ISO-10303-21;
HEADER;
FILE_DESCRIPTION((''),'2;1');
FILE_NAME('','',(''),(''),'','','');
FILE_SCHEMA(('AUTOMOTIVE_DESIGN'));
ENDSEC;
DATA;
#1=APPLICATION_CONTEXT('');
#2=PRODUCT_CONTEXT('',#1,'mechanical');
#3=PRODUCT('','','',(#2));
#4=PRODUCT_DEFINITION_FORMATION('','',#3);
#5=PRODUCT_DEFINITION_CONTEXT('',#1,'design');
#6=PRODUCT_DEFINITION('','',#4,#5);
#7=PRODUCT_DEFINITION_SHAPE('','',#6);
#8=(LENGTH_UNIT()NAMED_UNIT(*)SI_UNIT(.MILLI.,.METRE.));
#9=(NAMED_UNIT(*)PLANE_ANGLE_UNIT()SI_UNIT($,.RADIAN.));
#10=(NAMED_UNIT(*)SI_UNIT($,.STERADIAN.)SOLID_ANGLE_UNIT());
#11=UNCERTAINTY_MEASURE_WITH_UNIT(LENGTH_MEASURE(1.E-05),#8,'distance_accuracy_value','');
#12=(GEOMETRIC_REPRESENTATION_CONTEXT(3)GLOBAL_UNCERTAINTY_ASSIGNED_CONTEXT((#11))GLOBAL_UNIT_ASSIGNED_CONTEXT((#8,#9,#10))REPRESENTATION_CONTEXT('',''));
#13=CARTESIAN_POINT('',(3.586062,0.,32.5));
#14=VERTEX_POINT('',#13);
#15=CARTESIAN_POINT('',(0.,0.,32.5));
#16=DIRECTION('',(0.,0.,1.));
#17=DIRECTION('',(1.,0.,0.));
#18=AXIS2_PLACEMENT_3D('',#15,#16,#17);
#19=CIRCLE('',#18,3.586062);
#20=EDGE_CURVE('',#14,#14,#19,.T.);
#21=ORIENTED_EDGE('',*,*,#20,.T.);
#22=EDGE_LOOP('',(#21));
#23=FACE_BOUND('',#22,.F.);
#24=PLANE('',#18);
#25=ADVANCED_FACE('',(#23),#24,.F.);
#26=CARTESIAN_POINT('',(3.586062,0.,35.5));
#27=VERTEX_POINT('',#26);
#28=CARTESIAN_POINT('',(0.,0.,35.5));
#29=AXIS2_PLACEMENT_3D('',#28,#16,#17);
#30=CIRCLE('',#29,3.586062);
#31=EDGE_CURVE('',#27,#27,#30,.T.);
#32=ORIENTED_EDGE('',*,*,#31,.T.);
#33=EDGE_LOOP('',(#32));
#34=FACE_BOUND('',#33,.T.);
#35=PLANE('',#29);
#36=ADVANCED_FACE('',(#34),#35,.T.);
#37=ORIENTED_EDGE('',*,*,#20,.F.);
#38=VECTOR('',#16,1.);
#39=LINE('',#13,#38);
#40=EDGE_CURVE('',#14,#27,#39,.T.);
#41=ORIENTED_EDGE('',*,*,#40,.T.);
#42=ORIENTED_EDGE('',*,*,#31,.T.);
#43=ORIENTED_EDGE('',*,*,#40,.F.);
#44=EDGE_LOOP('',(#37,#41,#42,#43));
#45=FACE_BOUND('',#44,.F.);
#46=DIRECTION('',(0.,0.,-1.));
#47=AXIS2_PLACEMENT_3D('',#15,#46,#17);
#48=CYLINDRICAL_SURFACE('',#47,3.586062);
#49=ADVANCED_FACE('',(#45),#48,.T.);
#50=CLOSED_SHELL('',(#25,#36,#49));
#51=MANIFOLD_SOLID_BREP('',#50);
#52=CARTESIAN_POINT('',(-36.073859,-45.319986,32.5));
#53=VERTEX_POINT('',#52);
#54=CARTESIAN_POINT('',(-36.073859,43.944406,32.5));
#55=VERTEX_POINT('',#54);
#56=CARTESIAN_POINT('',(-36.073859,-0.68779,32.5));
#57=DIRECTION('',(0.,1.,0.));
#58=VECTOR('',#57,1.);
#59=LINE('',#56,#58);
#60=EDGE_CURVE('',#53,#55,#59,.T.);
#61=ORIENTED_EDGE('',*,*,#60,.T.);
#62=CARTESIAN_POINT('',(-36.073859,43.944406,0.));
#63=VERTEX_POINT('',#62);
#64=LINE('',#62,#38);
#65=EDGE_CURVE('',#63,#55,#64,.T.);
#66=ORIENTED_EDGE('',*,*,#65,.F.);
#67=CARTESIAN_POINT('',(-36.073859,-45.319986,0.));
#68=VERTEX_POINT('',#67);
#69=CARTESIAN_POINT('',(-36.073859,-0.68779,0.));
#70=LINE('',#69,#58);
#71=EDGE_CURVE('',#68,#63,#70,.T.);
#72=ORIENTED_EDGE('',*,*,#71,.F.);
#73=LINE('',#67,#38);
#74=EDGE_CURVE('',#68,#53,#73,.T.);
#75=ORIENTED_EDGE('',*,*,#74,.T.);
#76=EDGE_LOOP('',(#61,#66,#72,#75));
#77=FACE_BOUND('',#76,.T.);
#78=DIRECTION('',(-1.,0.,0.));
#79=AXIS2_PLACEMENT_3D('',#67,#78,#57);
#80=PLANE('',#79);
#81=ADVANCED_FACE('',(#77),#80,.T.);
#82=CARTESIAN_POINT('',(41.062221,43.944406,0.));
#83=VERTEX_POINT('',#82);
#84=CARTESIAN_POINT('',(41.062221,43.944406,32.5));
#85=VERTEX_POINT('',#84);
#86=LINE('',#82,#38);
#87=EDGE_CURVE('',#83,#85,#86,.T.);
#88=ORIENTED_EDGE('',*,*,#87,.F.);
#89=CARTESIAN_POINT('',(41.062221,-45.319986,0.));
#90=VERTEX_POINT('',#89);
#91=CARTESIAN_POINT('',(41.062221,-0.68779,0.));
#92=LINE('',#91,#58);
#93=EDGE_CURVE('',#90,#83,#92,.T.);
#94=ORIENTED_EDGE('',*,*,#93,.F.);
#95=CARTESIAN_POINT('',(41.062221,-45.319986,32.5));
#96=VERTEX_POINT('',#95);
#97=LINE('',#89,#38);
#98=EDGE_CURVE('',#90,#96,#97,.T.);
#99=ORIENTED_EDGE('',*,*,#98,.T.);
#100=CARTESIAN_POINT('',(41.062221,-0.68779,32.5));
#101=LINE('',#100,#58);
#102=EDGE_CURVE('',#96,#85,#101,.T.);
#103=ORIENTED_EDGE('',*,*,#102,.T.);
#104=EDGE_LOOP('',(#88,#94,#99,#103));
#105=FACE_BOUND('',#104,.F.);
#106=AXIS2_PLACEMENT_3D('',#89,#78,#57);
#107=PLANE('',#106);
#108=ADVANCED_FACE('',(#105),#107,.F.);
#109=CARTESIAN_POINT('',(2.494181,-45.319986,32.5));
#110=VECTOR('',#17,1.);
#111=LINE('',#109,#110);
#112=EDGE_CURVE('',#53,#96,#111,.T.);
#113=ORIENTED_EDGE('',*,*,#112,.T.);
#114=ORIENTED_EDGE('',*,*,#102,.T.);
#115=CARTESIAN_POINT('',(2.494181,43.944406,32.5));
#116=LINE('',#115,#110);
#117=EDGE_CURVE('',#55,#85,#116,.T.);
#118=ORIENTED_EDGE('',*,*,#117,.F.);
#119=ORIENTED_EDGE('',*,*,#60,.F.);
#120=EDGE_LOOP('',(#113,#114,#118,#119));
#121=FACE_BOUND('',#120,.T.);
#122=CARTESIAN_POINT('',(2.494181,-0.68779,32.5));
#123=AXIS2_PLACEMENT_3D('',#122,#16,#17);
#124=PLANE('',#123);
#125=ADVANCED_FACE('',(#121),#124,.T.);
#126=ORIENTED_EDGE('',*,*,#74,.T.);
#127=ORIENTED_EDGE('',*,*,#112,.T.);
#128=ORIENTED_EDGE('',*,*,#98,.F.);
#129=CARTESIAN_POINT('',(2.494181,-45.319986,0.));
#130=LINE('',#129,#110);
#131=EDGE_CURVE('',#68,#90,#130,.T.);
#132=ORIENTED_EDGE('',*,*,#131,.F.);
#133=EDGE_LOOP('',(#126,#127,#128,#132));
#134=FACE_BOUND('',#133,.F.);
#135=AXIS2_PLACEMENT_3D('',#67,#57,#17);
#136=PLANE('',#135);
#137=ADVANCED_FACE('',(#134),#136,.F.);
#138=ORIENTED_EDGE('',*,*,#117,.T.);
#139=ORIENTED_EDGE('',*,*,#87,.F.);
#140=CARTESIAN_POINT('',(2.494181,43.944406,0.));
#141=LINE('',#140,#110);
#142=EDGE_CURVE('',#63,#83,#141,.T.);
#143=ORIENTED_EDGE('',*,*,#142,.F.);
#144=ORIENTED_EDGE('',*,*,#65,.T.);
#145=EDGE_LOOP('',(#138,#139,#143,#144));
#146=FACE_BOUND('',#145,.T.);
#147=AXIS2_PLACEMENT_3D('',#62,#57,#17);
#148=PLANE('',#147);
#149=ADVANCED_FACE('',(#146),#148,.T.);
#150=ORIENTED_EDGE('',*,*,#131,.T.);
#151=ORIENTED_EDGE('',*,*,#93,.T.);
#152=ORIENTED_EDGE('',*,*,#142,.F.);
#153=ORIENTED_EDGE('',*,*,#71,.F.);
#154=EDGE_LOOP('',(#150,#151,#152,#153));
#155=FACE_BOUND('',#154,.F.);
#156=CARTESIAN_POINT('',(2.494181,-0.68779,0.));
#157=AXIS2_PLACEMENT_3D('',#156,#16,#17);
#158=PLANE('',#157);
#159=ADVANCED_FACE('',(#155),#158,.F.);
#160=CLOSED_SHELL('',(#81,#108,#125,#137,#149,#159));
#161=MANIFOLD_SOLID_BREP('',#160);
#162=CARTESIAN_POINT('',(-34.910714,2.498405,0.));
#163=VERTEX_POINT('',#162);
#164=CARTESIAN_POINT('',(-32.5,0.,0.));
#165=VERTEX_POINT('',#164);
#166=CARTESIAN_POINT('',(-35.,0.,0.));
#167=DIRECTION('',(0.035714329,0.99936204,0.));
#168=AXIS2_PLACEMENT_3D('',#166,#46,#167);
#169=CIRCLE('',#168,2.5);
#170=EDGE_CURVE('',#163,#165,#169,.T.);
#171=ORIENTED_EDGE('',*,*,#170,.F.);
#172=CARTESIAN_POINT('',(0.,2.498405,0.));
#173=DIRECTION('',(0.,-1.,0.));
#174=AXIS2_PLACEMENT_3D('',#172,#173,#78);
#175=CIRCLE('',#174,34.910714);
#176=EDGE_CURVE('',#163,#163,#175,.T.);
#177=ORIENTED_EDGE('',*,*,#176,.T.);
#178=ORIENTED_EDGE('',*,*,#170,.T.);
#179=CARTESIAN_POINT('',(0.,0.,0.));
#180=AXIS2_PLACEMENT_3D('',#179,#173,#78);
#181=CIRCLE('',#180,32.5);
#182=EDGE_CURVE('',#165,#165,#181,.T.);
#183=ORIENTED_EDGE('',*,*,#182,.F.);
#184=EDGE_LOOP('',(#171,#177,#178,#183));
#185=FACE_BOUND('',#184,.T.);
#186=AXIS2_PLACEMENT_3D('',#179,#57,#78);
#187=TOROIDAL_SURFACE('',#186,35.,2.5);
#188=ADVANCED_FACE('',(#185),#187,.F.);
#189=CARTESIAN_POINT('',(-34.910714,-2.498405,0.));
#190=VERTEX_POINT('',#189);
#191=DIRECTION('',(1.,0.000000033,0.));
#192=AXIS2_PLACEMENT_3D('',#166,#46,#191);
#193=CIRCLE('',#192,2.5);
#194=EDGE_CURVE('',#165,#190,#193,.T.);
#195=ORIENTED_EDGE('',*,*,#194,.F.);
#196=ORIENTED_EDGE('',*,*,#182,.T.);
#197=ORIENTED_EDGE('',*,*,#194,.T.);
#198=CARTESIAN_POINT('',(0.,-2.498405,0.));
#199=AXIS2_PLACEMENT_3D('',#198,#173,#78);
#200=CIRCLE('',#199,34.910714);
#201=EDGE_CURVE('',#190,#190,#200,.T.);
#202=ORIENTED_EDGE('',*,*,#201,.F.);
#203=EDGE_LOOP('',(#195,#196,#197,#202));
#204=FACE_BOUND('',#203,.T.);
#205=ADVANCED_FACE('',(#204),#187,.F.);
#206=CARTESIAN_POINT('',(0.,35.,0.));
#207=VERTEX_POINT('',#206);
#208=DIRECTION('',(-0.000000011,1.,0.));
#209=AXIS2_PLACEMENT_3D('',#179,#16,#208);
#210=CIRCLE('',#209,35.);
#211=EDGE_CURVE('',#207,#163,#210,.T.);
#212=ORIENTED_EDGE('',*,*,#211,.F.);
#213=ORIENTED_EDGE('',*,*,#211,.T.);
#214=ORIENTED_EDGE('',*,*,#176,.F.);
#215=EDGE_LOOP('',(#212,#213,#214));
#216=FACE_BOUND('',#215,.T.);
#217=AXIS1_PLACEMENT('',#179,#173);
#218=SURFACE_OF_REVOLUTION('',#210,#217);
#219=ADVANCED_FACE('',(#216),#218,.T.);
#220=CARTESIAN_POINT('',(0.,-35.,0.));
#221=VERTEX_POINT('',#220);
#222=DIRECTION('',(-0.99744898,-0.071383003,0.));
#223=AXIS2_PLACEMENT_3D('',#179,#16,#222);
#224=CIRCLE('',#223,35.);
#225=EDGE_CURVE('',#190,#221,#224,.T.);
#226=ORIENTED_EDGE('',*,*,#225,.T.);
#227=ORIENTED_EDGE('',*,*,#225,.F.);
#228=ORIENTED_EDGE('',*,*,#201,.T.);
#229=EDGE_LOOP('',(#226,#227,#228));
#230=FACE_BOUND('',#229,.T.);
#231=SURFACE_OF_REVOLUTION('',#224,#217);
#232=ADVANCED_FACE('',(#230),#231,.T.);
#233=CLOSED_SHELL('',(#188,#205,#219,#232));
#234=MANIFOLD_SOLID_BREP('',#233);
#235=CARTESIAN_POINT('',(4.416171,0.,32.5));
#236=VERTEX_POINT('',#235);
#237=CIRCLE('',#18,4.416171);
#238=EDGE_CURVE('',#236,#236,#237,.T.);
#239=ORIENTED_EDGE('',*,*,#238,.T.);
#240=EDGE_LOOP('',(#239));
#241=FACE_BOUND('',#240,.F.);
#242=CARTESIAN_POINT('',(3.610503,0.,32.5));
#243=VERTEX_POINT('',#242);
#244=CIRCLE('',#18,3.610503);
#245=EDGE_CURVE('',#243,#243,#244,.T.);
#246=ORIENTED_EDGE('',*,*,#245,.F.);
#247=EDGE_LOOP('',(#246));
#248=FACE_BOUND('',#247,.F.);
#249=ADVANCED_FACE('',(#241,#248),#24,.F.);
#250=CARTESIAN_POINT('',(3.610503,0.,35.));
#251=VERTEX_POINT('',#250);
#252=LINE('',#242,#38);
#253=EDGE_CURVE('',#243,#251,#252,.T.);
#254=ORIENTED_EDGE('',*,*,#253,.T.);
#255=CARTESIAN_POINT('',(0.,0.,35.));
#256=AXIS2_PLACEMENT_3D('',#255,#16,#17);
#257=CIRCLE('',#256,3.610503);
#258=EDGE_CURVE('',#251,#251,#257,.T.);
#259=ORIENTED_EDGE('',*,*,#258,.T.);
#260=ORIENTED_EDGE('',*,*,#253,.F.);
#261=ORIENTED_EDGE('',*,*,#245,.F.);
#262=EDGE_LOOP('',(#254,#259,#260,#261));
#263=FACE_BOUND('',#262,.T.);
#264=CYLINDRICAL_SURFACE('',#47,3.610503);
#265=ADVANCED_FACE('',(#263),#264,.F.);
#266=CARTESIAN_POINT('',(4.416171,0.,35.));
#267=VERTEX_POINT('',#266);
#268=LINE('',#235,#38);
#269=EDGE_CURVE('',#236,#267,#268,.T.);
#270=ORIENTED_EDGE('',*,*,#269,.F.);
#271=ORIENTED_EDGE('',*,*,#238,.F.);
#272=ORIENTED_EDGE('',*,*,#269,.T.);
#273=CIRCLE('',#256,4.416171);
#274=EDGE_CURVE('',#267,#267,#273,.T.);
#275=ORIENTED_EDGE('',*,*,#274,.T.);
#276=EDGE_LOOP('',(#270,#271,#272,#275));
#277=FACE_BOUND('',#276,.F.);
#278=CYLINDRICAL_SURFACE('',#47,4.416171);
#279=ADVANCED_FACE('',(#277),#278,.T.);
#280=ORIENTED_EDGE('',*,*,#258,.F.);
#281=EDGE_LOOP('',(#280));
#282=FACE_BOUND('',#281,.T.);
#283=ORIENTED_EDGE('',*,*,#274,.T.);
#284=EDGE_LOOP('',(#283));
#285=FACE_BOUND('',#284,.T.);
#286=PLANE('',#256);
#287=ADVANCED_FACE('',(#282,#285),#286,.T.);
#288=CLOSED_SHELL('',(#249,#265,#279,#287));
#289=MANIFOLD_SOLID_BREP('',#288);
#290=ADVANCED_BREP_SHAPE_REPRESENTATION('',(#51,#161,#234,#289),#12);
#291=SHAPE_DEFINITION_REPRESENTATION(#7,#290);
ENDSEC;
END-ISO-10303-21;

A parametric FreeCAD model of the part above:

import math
import FreeCAD as App
import Part
import Sketcher
from FreeCAD import Vector
Q = App.Units.Quantity

doc = App.newDocument("Part")
body = doc.addObject("PartDesign::Body", "Body")

sketch1 = body.newObject("Sketcher::SketchObject", "Sketch")
sketch1.AttachmentSupport = (doc.getObject("XY_Plane"), [""])
sketch1.MapMode = "FlatFace"
sketch1.addGeometry([
    Part.LineSegment(Vector(0, -35, 0), Vector(0, 35, 0)),
    Part.ArcOfCircle(Part.Circle(Vector(0, 0, 0), Vector(0, 0, 1), 35), math.radians(90.000001), math.radians(175.906574)),
    Part.ArcOfCircle(Part.Circle(Vector(-35, 0, 0), Vector(0, 0, 1), 2.5), math.radians(-0.000002), math.radians(87.953284)),
    Part.ArcOfCircle(Part.Circle(Vector(-35, 0, 0), Vector(0, 0, 1), 2.5), math.radians(-87.953284), math.radians(0.000002)),
    Part.ArcOfCircle(Part.Circle(Vector(0, 0, 0), Vector(0, 0, 1), 35), math.radians(-175.906574), math.radians(-90.000001)),
], False)
sketch1.addConstraint([
    Sketcher.Constraint("Coincident", 0, 2, 1, 1),
    Sketcher.Constraint("Coincident", 1, 2, 2, 2),
    Sketcher.Constraint("Tangent", 2, 1, 3, 2),
    Sketcher.Constraint("Coincident", 3, 1, 4, 1),
    Sketcher.Constraint("Coincident", 4, 2, 0, 1),
    Sketcher.Constraint("Vertical", 0),
    Sketcher.Constraint("Coincident", 1, 3, -1, 1),
    Sketcher.Constraint("Coincident", 4, 3, -1, 1),
    Sketcher.Constraint("Equal", 2, 3),
    Sketcher.Constraint("Equal", 1, 4),
    Sketcher.Constraint("PointOnObject", 2, 3, -1),
    Sketcher.Constraint("PointOnObject", 0, 2, -2),
    Sketcher.Constraint("PointOnObject", 2, 1, -1),
    Sketcher.Constraint("Radius", 1, Q("35 mm")),
    Sketcher.Constraint("Radius", 2, Q("2.5 mm")),
    Sketcher.Constraint("DistanceX", 2, 3, -1, 1, Q("35 mm")),
])
revolution = body.newObject("PartDesign::Revolution", "Revolution")
revolution.Profile = sketch1
revolution.ReferenceAxis = (sketch1, ["V_Axis"])
revolution.Angle = 360
body2 = doc.addObject("PartDesign::Body", "Body001")

sketch2 = body2.newObject("Sketcher::SketchObject", "Sketch001")
sketch2.AttachmentSupport = (doc.getObject("XY_Plane001"), [""])
sketch2.MapMode = "FlatFace"
sketch2.addGeometry([
    Part.LineSegment(Vector(-36.073859, 43.944406, 0), Vector(-36.073859, -45.319986, 0)),
    Part.LineSegment(Vector(-36.073859, -45.319986, 0), Vector(41.062221, -45.319986, 0)),
    Part.LineSegment(Vector(41.062221, -45.319986, 0), Vector(41.062221, 43.944406, 0)),
    Part.LineSegment(Vector(41.062221, 43.944406, 0), Vector(-36.073859, 43.944406, 0)),
], False)
sketch2.addConstraint([
    Sketcher.Constraint("Coincident", 0, 2, 1, 1),
    Sketcher.Constraint("Coincident", 1, 2, 2, 1),
    Sketcher.Constraint("Coincident", 2, 2, 3, 1),
    Sketcher.Constraint("Coincident", 3, 2, 0, 1),
    Sketcher.Constraint("Vertical", 0),
    Sketcher.Constraint("Horizontal", 1),
    Sketcher.Constraint("Vertical", 2),
    Sketcher.Constraint("Horizontal", 3),
    Sketcher.Constraint("DistanceX", 1, 1, 1, 2, Q("77.136081 mm")),
    Sketcher.Constraint("DistanceY", 0, 2, 0, 1, Q("89.264393 mm")),
    Sketcher.Constraint("DistanceX", 0, 2, -1, 1, Q("36.073859 mm")),
    Sketcher.Constraint("DistanceY", 0, 2, -1, 1, Q("45.319986 mm")),
])
pad1 = body2.newObject("PartDesign::Pad", "Pad")
pad1.Profile = sketch2
pad1.Length = 32.5
body3 = doc.addObject("PartDesign::Body", "Body002")

sketch3 = body3.newObject("Sketcher::SketchObject", "Sketch002")
sketch3.AttachmentSupport = (doc.getObject("XY_Plane002"), [""])
sketch3.MapMode = "FlatFace"
sketch3.AttachmentOffset = App.Placement(Vector(0, 0, 32.5), App.Rotation())
sketch3.addGeometry([
    Part.Circle(Vector(0, 0, 0), Vector(0, 0, 1), 4.416171),
    Part.Circle(Vector(0, 0, 0), Vector(0, 0, 1), 3.610503),
], False)
sketch3.addConstraint([
    Sketcher.Constraint("Coincident", 0, 3, -1, 1),
    Sketcher.Constraint("Coincident", 1, 3, -1, 1),
    Sketcher.Constraint("Diameter", 0, Q("8.832342 mm")),
    Sketcher.Constraint("Diameter", 1, Q("7.221006 mm")),
])
pad2 = body3.newObject("PartDesign::Pad", "Pad001")
pad2.Profile = sketch3
pad2.Length = 2.5
body4 = doc.addObject("PartDesign::Body", "Body003")

sketch4 = body4.newObject("Sketcher::SketchObject", "Sketch003")
sketch4.AttachmentSupport = (doc.getObject("XY_Plane003"), [""])
sketch4.MapMode = "FlatFace"
sketch4.AttachmentOffset = App.Placement(Vector(0, 0, 32.5), App.Rotation())
sketch4.addGeometry(Part.Circle(Vector(0, 0, 0), Vector(0, 0, 1), 3.586062), False)
sketch4.addConstraint([
    Sketcher.Constraint("Coincident", 0, 3, -1, 1),
    Sketcher.Constraint("Diameter", 0, Q("7.172124 mm")),
])
pad3 = body4.newObject("PartDesign::Pad", "Pad002")
pad3.Profile = sketch4
pad3.Length = 3

doc.recompute()
